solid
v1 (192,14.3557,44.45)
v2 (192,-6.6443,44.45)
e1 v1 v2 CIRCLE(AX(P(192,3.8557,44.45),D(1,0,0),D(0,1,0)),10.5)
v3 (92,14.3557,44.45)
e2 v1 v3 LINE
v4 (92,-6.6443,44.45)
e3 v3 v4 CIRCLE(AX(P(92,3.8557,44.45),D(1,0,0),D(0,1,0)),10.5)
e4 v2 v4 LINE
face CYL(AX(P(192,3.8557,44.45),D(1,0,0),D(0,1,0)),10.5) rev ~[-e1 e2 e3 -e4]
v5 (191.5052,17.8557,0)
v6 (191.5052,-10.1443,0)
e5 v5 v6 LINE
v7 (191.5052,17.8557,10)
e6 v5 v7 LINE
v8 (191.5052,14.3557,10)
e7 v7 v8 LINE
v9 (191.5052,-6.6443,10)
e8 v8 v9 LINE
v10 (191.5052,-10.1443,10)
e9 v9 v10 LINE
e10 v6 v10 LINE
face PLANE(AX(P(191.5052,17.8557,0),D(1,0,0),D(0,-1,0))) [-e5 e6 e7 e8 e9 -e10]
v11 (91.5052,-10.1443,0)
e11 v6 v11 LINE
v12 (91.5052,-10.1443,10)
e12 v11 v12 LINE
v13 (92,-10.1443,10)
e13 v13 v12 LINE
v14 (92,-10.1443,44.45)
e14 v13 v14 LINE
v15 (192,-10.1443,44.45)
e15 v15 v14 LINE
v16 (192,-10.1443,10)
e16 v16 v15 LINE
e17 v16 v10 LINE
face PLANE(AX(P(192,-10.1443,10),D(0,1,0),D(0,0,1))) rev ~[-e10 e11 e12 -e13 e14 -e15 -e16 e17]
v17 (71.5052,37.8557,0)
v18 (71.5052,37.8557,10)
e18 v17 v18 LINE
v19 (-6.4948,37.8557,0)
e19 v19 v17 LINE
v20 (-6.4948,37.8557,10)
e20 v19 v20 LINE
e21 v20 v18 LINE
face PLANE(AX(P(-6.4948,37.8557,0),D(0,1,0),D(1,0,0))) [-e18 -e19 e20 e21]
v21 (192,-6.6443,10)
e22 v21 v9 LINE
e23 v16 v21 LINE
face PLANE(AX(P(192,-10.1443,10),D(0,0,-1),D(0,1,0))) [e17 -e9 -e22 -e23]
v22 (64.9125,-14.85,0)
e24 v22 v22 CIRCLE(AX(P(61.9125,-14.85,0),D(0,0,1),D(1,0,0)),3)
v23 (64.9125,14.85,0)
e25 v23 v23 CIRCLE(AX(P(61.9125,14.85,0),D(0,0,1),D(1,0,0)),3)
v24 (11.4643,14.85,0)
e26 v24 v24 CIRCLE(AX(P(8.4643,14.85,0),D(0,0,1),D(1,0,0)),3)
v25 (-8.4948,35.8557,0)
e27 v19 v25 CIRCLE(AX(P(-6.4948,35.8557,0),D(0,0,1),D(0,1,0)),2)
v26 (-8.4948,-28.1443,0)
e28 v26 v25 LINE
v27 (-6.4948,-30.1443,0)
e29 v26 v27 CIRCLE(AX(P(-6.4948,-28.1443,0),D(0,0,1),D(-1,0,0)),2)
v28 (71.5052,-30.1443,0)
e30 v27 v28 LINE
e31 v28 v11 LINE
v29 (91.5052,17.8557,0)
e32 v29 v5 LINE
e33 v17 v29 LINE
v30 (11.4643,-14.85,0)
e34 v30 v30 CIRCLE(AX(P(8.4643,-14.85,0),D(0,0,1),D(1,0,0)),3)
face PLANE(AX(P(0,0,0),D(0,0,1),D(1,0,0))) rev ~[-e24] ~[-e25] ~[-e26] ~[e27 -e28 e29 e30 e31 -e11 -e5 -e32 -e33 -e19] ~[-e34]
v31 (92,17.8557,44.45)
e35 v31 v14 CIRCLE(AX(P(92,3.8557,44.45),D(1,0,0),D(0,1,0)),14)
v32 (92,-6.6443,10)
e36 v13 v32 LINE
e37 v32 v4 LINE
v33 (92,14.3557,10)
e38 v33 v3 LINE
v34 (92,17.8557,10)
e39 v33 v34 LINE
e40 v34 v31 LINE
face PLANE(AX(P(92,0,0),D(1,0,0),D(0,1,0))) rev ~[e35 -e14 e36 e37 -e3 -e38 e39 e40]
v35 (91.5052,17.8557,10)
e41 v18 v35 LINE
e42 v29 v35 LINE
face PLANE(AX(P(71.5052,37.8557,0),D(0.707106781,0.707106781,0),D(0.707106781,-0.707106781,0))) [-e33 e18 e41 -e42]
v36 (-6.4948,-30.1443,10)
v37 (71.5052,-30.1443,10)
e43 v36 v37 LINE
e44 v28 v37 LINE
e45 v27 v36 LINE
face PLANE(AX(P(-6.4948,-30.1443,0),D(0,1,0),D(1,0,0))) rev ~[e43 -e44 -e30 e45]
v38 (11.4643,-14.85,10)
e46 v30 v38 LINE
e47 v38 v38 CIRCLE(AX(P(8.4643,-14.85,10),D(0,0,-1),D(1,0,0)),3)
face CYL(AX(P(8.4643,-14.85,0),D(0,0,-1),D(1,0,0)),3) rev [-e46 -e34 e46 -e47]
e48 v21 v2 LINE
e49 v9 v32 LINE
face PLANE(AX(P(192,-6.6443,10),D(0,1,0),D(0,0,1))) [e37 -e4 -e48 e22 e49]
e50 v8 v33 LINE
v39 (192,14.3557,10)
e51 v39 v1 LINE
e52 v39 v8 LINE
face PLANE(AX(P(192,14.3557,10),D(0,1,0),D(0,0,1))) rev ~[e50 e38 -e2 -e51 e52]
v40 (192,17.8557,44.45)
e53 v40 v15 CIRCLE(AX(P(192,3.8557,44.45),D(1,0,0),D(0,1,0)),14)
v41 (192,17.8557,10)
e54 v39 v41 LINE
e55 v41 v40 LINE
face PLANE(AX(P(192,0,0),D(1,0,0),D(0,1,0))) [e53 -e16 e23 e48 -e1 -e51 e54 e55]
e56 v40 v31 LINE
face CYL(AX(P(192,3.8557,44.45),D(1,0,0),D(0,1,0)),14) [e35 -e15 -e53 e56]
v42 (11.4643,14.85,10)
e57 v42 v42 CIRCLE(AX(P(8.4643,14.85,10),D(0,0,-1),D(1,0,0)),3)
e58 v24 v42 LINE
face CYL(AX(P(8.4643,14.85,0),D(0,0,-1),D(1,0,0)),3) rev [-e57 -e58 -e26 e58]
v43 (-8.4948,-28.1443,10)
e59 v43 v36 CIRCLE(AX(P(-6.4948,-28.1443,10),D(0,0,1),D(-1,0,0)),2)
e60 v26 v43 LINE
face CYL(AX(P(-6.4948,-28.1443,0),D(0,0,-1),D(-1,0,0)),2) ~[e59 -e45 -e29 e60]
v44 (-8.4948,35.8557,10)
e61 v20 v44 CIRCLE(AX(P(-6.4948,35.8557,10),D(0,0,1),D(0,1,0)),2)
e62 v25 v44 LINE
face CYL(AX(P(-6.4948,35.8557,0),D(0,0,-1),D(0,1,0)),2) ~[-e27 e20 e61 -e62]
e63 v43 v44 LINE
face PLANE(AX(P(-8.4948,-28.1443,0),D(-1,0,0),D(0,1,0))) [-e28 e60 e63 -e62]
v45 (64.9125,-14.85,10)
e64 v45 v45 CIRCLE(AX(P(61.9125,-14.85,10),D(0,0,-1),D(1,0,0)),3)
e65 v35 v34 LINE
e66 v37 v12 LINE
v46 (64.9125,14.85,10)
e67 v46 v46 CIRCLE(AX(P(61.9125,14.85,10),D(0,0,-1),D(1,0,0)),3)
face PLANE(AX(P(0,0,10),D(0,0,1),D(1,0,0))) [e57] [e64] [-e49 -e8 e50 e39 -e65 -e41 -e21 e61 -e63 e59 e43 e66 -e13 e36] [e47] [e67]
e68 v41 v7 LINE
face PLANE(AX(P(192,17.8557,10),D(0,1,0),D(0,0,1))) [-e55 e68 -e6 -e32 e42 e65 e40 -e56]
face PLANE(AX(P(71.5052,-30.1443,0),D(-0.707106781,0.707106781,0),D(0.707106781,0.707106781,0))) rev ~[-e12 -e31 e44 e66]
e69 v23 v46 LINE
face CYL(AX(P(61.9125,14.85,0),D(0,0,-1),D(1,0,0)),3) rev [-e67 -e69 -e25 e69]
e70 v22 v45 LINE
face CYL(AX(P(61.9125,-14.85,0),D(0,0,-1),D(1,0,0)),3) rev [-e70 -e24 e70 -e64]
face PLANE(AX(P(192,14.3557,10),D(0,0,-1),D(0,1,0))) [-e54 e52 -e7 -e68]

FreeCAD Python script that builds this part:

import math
import FreeCAD as App
import Part
import Sketcher

V = App.Vector

doc = App.newDocument("Part")
body = doc.addObject("PartDesign::Body", "Body")

sketch1 = doc.addObject("Sketcher::SketchObject", "Sketch")
body.addObject(sketch1)
sketch1.AttachmentSupport = (doc.XY_Plane, [""])
sketch1.MapMode = "FlatFace"
sketch1.addGeometry([
    Part.LineSegment(V(-8.5, 35.9, 0), V(-8.5, -28.1, 0)),
    Part.ArcOfCircle(Part.Circle(V(-6.5, -28.1, 0), V(0, 0, 1), 2), math.radians(180), math.radians(270)),
    Part.LineSegment(V(-6.5, -30.1, 0), V(71.5, -30.1, 0)),
    Part.LineSegment(V(71.5, -30.1, 0), V(91.5, -10.1, 0)),
    Part.LineSegment(V(91.5, -10.1, 0), V(191.5, -10.1, 0)),
    Part.LineSegment(V(191.5, -10.1, 0), V(191.5, 17.9, 0)),
    Part.LineSegment(V(191.5, 17.9, 0), V(91.5, 17.9, 0)),
    Part.LineSegment(V(91.5, 17.9, 0), V(71.5, 37.9, 0)),
    Part.LineSegment(V(71.5, 37.9, 0), V(-6.5, 37.9, 0)),
    Part.ArcOfCircle(Part.Circle(V(-6.5, 35.9, 0), V(0, 0, 1), 2), math.radians(90), math.radians(180)),
], False)
sketch1.addConstraint([
    Sketcher.Constraint("Tangent", 0, 2, 1, 1),
    Sketcher.Constraint("Tangent", 1, 2, 2, 1),
    Sketcher.Constraint("Coincident", 2, 2, 3, 1),
    Sketcher.Constraint("Coincident", 3, 2, 4, 1),
    Sketcher.Constraint("Coincident", 4, 2, 5, 1),
    Sketcher.Constraint("Coincident", 5, 2, 6, 1),
    Sketcher.Constraint("Coincident", 6, 2, 7, 1),
    Sketcher.Constraint("Coincident", 7, 2, 8, 1),
    Sketcher.Constraint("Tangent", 8, 2, 9, 1),
    Sketcher.Constraint("Tangent", 9, 2, 0, 1),
    Sketcher.Constraint("Vertical", 0),
    Sketcher.Constraint("Horizontal", 2),
    Sketcher.Constraint("Horizontal", 4),
    Sketcher.Constraint("Vertical", 5),
    Sketcher.Constraint("Horizontal", 6),
    Sketcher.Constraint("Horizontal", 8),
    Sketcher.Constraint("Equal", 1, 9),
    Sketcher.Constraint("Perpendicular", 3, 7),
    Sketcher.Constraint("Vertical", 3, 2, 6, 2),
    Sketcher.Constraint("Vertical", 2, 2, 7, 2),
    Sketcher.Constraint("Equal", 3, 7),
    Sketcher.Constraint("Radius", 1, 2.0),
    Sketcher.Constraint("DistanceX", 4, 1, 4, 2, 100.0),
    Sketcher.Constraint("DistanceY", 5, 1, 5, 2, 28.0),
    Sketcher.Constraint("DistanceX", 0, 2, 2, 2, 80.0),
    Sketcher.Constraint("DistanceX", 2, 2, 3, 2, 20.0),
    Sketcher.Constraint("DistanceX", 1, 3, -1, 1, 6.4948),
    Sketcher.Constraint("DistanceY", 1, 3, -1, 1, 28.1443),
])
pad1 = doc.addObject("PartDesign::Pad", "Pad")
body.addObject(pad1)
pad1.Profile = sketch1
pad1.Length = 10

sketch2 = doc.addObject("Sketcher::SketchObject", "Sketch001")
body.addObject(sketch2)
sketch2.AttachmentSupport = (doc.YZ_Plane, [""])
sketch2.MapMode = "FlatFace"
sketch2.AttachmentOffset = App.Placement(V(0, 0, 192), App.Rotation())
sketch2.addGeometry([
    Part.LineSegment(V(14.4, 10, 0), V(17.9, 10, 0)),
    Part.LineSegment(V(17.9, 10, 0), V(17.9, 44.5, 0)),
    Part.ArcOfCircle(Part.Circle(V(3.9, 44.5, 0), V(0, 0, 1), 14), math.radians(0), math.radians(180)),
    Part.LineSegment(V(-10.1, 44.5, 0), V(-10.1, 10, 0)),
    Part.LineSegment(V(-10.1, 10, 0), V(-6.6, 10, 0)),
    Part.LineSegment(V(-6.6, 10, 0), V(-6.6, 44.5, 0)),
    Part.ArcOfCircle(Part.Circle(V(3.9, 44.5, 0), V(0, 0, 1), 10.5), math.radians(0), math.radians(180)),
    Part.LineSegment(V(14.4, 44.5, 0), V(14.4, 10, 0)),
], False)
sketch2.addConstraint([
    Sketcher.Constraint("Coincident", 0, 2, 1, 1),
    Sketcher.Constraint("Tangent", 1, 2, 2, 1),
    Sketcher.Constraint("Tangent", 2, 2, 3, 1),
    Sketcher.Constraint("Coincident", 3, 2, 4, 1),
    Sketcher.Constraint("Coincident", 4, 2, 5, 1),
    Sketcher.Constraint("Tangent", 5, 2, 6, 2),
    Sketcher.Constraint("Tangent", 6, 1, 7, 1),
    Sketcher.Constraint("Coincident", 7, 2, 0, 1),
    Sketcher.Constraint("Horizontal", 0),
    Sketcher.Constraint("Vertical", 1),
    Sketcher.Constraint("Vertical", 3),
    Sketcher.Constraint("Horizontal", 4),
    Sketcher.Constraint("Vertical", 5),
    Sketcher.Constraint("Vertical", 7),
    Sketcher.Constraint("Coincident", 6, 3, 2, 3),
    Sketcher.Constraint("Horizontal", 0, 2, 3, 2),
    Sketcher.Constraint("DistanceX", 0, 1, 0, 2, 3.5),
    Sketcher.Constraint("Radius", 2, 14.0),
    Sketcher.Constraint("DistanceY", 1, 1, 1, 2, 34.45),
    Sketcher.Constraint("DistanceY", -1, 1, 0, 2, 10.0),
    Sketcher.Constraint("DistanceX", -1, 1, 2, 3, 3.8557),
])
pad2 = doc.addObject("PartDesign::Pad", "Pad001")
body.addObject(pad2)
pad2.Profile = sketch2
pad2.Length = 100
pad2.Reversed = True

sketch3 = doc.addObject("Sketcher::SketchObject", "Sketch002")
body.addObject(sketch3)
sketch3.AttachmentSupport = (doc.XY_Plane, [""])
sketch3.MapMode = "FlatFace"
sketch3.addGeometry([
    Part.Circle(V(61.9, 14.8, 0), V(0, 0, 1), 3),
    Part.Circle(V(61.9, -14.8, 0), V(0, 0, 1), 3),
    Part.Circle(V(8.5, 14.8, 0), V(0, 0, 1), 3),
    Part.Circle(V(8.5, -14.8, 0), V(0, 0, 1), 3),
], False)
sketch3.addConstraint([
    Sketcher.Constraint("Equal", 0, 1),
    Sketcher.Constraint("Equal", 1, 2),
    Sketcher.Constraint("Equal", 2, 3),
    Sketcher.Constraint("Symmetric", 0, 3, 1, 3, -1),
    Sketcher.Constraint("Symmetric", 2, 3, 3, 3, -1),
    Sketcher.Constraint("Horizontal", 0, 3, 2, 3),
    Sketcher.Constraint("Diameter", 0, 6.0),
    Sketcher.Constraint("DistanceY", -1, 1, 0, 3, 14.85),
    Sketcher.Constraint("DistanceX", -1, 1, 0, 3, 61.9125),
    Sketcher.Constraint("DistanceX", -1, 1, 2, 3, 8.4643),
])
pocket1 = doc.addObject("PartDesign::Pocket", "Pocket")
body.addObject(pocket1)
pocket1.Profile = sketch3
pocket1.Length = 10
pocket1.Reversed = True

doc.recompute()
